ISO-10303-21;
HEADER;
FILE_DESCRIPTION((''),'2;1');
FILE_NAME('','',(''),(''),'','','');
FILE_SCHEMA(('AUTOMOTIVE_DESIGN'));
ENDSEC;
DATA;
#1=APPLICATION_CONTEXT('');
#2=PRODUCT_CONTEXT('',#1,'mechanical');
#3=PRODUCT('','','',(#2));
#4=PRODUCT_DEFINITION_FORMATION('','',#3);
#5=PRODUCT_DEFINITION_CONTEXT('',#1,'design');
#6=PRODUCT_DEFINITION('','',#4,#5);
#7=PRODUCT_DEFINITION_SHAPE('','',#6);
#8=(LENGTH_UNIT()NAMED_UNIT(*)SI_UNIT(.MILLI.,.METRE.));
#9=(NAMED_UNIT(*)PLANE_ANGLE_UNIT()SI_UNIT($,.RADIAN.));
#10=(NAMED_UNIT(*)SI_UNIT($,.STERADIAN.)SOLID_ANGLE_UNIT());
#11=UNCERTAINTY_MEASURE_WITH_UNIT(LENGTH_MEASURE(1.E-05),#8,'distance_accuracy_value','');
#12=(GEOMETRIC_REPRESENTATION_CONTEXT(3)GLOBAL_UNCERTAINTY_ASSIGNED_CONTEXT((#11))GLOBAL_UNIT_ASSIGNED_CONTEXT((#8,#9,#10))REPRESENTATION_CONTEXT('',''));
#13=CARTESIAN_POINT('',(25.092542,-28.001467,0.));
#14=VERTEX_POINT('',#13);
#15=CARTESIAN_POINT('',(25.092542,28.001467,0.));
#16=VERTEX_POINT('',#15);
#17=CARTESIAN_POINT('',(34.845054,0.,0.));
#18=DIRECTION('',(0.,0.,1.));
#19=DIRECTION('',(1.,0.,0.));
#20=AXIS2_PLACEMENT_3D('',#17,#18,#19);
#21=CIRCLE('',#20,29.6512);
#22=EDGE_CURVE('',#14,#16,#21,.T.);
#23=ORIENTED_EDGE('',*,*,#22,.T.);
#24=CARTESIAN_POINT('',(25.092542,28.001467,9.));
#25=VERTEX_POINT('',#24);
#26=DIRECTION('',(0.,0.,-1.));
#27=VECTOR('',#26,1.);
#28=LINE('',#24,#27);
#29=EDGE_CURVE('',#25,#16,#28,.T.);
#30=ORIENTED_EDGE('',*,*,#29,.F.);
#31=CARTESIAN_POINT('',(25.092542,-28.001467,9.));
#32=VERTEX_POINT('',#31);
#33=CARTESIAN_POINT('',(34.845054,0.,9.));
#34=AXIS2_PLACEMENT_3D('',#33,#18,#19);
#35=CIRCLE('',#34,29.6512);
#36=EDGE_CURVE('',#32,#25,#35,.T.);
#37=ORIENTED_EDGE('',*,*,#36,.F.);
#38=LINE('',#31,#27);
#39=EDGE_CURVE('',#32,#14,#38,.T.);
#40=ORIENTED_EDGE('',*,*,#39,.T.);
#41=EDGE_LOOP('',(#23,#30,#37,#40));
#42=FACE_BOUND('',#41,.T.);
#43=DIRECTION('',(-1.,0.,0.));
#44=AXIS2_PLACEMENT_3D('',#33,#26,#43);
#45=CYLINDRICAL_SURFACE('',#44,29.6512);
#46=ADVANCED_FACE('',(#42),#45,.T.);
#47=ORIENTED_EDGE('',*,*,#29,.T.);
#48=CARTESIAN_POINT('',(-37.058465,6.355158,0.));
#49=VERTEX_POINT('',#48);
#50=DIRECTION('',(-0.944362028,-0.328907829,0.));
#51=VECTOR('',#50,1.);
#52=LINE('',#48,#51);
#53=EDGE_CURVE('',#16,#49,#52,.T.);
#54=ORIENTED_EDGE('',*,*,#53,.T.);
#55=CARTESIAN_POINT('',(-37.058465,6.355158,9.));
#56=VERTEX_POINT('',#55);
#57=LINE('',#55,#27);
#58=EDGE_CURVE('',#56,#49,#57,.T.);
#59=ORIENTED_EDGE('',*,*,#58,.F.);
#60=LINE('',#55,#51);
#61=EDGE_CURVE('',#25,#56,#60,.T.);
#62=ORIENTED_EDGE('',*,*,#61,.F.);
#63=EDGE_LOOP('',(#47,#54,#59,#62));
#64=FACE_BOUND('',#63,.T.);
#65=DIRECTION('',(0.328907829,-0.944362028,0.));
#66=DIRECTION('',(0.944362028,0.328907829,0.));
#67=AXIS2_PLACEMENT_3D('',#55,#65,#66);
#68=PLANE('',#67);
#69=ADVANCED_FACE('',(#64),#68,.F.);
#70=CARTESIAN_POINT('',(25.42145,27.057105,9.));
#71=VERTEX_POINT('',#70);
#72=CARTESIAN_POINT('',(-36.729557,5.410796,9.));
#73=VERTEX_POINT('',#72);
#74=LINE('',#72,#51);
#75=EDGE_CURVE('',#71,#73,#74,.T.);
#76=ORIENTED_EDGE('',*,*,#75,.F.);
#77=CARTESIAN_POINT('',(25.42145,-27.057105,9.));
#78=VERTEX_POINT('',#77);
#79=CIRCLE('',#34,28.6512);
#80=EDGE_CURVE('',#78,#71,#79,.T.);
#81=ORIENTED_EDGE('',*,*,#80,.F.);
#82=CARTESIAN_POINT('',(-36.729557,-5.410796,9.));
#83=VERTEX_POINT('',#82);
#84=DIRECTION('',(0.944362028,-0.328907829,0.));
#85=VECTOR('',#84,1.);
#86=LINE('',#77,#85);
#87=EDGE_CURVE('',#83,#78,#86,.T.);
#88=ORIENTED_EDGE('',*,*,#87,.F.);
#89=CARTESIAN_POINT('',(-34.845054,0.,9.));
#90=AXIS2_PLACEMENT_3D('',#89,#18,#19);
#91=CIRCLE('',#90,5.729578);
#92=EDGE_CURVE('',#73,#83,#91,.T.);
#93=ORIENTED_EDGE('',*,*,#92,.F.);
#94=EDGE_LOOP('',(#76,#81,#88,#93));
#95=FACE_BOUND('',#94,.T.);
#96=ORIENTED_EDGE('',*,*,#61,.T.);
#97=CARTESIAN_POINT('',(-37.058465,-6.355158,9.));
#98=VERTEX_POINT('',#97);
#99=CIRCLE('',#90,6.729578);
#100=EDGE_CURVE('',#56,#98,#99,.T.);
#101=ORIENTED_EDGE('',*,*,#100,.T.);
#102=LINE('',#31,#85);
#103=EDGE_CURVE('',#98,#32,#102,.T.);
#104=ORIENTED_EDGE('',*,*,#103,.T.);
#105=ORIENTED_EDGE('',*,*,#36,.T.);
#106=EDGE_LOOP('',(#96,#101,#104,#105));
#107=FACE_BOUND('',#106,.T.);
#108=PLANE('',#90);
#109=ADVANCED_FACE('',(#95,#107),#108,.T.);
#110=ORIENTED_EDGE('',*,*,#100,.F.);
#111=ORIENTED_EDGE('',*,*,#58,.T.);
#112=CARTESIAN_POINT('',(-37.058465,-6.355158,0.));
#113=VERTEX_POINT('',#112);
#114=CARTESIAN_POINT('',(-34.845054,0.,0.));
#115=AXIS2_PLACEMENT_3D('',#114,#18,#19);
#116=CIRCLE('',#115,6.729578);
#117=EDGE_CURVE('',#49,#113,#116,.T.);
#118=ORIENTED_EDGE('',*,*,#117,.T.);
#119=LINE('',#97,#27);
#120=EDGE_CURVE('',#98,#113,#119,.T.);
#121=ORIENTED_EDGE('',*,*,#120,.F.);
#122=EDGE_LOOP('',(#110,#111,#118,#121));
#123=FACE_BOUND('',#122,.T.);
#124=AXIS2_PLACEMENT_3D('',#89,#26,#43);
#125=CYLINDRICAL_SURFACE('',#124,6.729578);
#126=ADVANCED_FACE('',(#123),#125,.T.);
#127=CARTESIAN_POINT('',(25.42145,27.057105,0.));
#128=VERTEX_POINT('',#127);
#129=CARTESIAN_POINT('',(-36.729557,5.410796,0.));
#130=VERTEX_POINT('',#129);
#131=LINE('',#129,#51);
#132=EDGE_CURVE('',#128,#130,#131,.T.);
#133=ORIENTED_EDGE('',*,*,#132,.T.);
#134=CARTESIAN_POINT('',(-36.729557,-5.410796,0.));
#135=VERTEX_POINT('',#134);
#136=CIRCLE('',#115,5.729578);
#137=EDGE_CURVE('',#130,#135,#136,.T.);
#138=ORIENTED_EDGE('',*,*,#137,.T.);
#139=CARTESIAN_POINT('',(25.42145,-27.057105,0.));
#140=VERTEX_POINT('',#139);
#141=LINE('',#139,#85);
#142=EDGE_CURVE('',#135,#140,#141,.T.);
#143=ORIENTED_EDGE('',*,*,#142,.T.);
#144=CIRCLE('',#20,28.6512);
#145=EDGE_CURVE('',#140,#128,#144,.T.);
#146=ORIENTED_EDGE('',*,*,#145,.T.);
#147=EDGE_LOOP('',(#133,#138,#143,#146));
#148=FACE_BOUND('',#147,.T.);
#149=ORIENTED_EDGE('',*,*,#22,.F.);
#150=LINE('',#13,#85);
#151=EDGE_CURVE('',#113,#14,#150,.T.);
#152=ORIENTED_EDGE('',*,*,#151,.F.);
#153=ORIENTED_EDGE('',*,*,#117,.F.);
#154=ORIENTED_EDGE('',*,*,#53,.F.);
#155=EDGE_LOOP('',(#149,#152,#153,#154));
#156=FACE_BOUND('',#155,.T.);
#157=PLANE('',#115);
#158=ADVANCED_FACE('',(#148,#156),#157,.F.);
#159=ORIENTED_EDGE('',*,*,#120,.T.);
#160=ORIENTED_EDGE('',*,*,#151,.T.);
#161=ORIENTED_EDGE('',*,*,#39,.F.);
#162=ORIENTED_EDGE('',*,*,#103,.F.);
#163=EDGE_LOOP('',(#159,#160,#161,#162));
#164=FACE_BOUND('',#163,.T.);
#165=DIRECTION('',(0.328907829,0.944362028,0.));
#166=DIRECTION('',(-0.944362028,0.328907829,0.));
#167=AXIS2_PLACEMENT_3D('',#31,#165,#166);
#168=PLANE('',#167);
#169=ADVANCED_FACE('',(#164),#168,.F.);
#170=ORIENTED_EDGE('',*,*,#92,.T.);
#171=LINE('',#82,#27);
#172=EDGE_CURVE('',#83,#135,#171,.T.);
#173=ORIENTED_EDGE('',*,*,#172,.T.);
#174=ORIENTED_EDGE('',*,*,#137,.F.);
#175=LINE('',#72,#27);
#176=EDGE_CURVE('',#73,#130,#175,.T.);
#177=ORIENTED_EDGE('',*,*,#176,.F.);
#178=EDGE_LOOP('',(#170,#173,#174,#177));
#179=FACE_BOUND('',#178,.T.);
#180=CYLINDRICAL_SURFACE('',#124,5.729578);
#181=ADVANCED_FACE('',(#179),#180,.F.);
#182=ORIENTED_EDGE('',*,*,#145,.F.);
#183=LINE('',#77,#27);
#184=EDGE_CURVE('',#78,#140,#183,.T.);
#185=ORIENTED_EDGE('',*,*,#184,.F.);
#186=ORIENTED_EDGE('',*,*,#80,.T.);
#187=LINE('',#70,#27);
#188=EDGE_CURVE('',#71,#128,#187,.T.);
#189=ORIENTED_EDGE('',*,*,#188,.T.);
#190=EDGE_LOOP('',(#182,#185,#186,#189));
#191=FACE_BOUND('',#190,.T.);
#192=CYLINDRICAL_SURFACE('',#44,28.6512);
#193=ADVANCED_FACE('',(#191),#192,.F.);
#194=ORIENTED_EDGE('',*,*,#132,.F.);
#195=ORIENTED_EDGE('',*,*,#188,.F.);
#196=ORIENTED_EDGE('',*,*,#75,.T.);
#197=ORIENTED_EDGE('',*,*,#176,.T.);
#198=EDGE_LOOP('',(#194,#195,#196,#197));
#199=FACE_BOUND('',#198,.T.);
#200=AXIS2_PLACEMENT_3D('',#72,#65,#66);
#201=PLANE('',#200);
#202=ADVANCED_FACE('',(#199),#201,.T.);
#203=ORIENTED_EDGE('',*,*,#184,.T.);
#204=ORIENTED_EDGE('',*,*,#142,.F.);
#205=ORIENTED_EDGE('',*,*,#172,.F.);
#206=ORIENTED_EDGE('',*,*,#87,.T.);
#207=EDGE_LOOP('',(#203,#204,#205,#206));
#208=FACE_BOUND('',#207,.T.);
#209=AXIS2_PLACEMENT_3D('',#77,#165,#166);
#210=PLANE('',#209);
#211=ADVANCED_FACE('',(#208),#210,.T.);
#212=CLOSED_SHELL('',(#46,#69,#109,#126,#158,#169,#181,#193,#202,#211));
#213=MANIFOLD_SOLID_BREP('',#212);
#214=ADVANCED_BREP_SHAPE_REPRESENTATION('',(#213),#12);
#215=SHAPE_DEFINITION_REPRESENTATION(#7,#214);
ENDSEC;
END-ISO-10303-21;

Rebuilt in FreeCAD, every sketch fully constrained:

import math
import FreeCAD as App
import Part
import Sketcher
Q = App.Units.Quantity

doc = App.newDocument("Part")
body = doc.addObject("PartDesign::Body", "Body")

# Sketch on XY plane
sketch1 = body.newObject("Sketcher::SketchObject", "Sketch")
sketch1.AttachmentSupport = (doc.getObject("XY_Plane"), [""])
sketch1.MapMode = "FlatFace"
sketch1.addGeometry([
    Part.LineSegment(App.Vector(-37, -6, 0), App.Vector(25, -28, 0)),  # 0
    Part.ArcOfCircle(Part.Circle(App.Vector(35, 0, 0), App.Vector(0, 0, 1), 30), math.radians(-109), math.radians(109)),  # 1
    Part.LineSegment(App.Vector(25, 28, 0), App.Vector(-37, 6, 0)),  # 2
    Part.ArcOfCircle(Part.Circle(App.Vector(-35, 0, 0), App.Vector(0, 0, 1), 7), math.radians(109), math.radians(251)),  # 3
    Part.LineSegment(App.Vector(25, -27, 0), App.Vector(-37, -5, 0)),  # 4
    Part.ArcOfCircle(Part.Circle(App.Vector(-35, 0, 0), App.Vector(0, 0, 1), 6), math.radians(109), math.radians(251)),  # 5
    Part.LineSegment(App.Vector(-37, 5, 0), App.Vector(25, 27, 0)),  # 6
    Part.ArcOfCircle(Part.Circle(App.Vector(35, 0, 0), App.Vector(0, 0, 1), 29), math.radians(-109), math.radians(109)),  # 7
], False)
sketch1.addConstraint([
    Sketcher.Constraint("Tangent", 0, 2, 1, 1),
    Sketcher.Constraint("Tangent", 1, 2, 2, 1),
    Sketcher.Constraint("Tangent", 2, 2, 3, 1),
    Sketcher.Constraint("Tangent", 3, 2, 0, 1),
    Sketcher.Constraint("Tangent", 4, 2, 5, 2),
    Sketcher.Constraint("Tangent", 5, 1, 6, 1),
    Sketcher.Constraint("Tangent", 6, 2, 7, 2),
    Sketcher.Constraint("Tangent", 7, 1, 4, 1),
    Sketcher.Constraint("Coincident", 5, 3, 3, 3),
    Sketcher.Constraint("Coincident", 7, 3, 1, 3),
    Sketcher.Constraint("Symmetric", 1, 3, 3, 3, -1, 1),
    Sketcher.Constraint("PointOnObject", 1, 3, -1),
    Sketcher.Constraint("Parallel", 0, 4),
    Sketcher.Constraint("Radius", 1, Q("29.6512 mm")),
    Sketcher.Constraint("Radius", 7, Q("28.6512 mm")),
    Sketcher.Constraint("Radius", 3, Q("6.729578 mm")),
    Sketcher.Constraint("DistanceX", 4, 2, 0, 2, Q("61.822099 mm")),
])
pad1 = body.newObject("PartDesign::Pad", "Pad")
pad1.Profile = sketch1
pad1.Length = 9

doc.recompute()
